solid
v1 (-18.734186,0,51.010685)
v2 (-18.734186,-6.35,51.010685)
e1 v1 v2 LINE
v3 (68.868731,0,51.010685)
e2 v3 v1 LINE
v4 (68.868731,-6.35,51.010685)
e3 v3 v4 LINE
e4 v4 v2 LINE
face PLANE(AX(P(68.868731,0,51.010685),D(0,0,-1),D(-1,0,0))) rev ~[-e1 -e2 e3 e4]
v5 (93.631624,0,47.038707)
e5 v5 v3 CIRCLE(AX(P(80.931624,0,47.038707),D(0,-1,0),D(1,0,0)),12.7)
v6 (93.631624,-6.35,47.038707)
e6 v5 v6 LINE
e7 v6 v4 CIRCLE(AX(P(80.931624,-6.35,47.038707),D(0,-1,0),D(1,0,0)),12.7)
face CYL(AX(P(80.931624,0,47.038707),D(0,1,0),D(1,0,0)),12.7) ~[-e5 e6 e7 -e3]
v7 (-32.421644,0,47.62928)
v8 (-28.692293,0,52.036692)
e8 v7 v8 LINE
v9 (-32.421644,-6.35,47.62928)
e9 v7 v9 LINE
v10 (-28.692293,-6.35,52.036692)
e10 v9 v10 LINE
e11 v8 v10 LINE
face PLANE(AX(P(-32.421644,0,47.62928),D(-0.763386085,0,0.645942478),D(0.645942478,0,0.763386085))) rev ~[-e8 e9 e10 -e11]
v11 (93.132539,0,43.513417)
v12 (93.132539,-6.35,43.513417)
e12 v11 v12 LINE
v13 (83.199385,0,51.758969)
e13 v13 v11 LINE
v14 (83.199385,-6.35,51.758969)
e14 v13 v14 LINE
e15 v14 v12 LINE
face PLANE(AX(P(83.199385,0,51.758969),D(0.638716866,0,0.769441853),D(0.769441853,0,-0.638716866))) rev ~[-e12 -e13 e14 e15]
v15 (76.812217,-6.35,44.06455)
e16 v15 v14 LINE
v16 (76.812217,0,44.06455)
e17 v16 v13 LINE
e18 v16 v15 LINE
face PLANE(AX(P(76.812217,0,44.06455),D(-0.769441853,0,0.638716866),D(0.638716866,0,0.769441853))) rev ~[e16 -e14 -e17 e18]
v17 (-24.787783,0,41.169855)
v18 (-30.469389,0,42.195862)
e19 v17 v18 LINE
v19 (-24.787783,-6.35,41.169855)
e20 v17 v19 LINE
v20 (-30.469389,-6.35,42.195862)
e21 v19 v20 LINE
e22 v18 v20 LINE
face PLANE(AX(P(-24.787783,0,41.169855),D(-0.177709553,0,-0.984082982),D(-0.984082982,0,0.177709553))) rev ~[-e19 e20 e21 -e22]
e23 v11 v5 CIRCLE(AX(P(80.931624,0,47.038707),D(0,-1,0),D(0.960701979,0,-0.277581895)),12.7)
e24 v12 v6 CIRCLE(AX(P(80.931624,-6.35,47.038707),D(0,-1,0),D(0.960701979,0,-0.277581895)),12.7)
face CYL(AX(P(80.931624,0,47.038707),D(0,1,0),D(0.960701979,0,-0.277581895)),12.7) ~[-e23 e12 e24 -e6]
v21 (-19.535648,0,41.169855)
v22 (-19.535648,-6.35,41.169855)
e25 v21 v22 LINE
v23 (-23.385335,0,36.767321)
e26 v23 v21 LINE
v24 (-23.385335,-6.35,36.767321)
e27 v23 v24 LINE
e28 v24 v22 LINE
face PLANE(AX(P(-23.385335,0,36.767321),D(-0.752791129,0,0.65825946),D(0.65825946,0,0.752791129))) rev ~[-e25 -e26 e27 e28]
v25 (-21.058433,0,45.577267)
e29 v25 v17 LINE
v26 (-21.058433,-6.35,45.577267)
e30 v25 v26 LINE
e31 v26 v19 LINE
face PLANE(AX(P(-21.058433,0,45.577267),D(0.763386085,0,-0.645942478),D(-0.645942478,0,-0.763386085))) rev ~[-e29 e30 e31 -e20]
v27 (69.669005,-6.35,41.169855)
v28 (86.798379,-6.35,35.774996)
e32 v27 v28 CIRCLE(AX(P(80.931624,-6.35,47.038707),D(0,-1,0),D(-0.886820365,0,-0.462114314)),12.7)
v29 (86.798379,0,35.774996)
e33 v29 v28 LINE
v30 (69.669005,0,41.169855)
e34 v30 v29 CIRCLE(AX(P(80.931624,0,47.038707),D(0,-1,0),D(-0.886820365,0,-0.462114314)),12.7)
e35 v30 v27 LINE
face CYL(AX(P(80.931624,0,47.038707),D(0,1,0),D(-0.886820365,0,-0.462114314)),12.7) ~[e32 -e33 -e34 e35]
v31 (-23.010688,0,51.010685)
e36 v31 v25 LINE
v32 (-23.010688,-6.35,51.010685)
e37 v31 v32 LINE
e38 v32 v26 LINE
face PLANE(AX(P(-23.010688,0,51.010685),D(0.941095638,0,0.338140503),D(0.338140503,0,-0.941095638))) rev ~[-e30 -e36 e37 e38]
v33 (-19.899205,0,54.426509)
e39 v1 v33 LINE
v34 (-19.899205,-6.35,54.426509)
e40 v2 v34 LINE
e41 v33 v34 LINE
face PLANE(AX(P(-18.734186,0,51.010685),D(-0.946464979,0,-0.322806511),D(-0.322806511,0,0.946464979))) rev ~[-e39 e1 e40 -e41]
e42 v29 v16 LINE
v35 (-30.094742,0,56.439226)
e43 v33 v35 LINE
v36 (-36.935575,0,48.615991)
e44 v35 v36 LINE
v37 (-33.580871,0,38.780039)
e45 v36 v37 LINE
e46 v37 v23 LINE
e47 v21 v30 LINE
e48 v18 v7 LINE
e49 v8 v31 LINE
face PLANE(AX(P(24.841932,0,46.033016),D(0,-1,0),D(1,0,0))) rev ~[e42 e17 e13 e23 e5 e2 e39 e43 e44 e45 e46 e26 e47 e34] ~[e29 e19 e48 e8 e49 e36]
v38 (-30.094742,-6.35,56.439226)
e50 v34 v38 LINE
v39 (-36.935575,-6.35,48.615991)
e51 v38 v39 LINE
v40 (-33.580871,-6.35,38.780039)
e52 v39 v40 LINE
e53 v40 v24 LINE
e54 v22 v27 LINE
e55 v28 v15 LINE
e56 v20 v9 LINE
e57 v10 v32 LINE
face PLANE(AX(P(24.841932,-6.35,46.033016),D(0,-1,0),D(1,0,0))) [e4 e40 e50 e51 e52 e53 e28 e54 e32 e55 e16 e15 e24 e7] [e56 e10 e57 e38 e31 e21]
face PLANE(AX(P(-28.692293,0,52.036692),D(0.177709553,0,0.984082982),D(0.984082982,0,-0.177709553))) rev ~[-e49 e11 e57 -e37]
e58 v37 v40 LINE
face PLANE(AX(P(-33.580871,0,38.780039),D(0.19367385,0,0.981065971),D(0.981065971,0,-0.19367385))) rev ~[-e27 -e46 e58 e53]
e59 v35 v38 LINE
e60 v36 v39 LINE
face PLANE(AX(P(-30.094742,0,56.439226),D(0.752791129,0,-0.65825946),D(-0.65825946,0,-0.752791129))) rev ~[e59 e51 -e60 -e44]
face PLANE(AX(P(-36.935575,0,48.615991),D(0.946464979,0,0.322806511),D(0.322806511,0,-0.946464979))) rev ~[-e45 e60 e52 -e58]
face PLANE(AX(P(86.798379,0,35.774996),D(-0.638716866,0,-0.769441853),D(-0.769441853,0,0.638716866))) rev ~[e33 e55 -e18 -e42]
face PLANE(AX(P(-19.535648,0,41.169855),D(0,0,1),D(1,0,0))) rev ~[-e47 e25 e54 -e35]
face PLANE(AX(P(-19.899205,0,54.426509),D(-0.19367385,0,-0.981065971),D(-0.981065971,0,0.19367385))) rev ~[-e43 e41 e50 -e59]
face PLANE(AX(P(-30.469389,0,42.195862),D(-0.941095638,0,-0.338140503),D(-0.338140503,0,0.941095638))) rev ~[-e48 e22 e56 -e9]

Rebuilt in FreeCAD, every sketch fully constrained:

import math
import FreeCAD as App
import Part
import Sketcher
Q = App.Units.Quantity

doc = App.newDocument("Part")
body = doc.addObject("PartDesign::Body", "Body")

# Sketch on XZ plane
sketch1 = doc.addObject("Sketcher::SketchObject", "Sketch")
body.addObject(sketch1)
sketch1.AttachmentSupport = (doc.XZ_Plane, [""])
sketch1.MapMode = "FlatFace"
sketch1.addGeometry(Part.ArcOfCircle(Part.Circle(App.Vector(80.931624, 47.038707, 0), App.Vector(0, 0, 1), 12.7), math.radians(-152.476375), math.radians(-62.487042)), False)
sketch1.addGeometry(Part.LineSegment(App.Vector(86.798379, 35.774996, 0), App.Vector(76.812217, 44.06455, 0)), False)
sketch1.addGeometry(Part.LineSegment(App.Vector(76.812217, 44.06455, 0), App.Vector(83.199385, 51.758969, 0)), False)
sketch1.addGeometry(Part.LineSegment(App.Vector(83.199385, 51.758969, 0), App.Vector(93.132539, 43.513417, 0)), False)
sketch1.addGeometry(Part.ArcOfCircle(Part.Circle(App.Vector(80.931624, 47.038707, 0), App.Vector(0, 0, 1), 12.7), math.radians(-16.115938), math.radians(0)), False)
sketch1.addGeometry(Part.ArcOfCircle(Part.Circle(App.Vector(80.931624, 47.038707, 0), App.Vector(0, 0, 1), 12.7), math.radians(0), math.radians(161.774711)), False)
sketch1.addGeometry(Part.LineSegment(App.Vector(68.868731, 51.010685, 0), App.Vector(-18.734186, 51.010685, 0)), False)
sketch1.addGeometry(Part.LineSegment(App.Vector(-18.734186, 51.010685, 0), App.Vector(-19.899205, 54.426509, 0)), False)
sketch1.addGeometry(Part.LineSegment(App.Vector(-19.899205, 54.426509, 0), App.Vector(-30.094742, 56.439226, 0)), False)
sketch1.addGeometry(Part.LineSegment(App.Vector(-30.094742, 56.439226, 0), App.Vector(-36.935575, 48.615991, 0)), False)
sketch1.addGeometry(Part.LineSegment(App.Vector(-36.935575, 48.615991, 0), App.Vector(-33.580871, 38.780039, 0)), False)
sketch1.addGeometry(Part.LineSegment(App.Vector(-33.580871, 38.780039, 0), App.Vector(-23.385335, 36.767321, 0)), False)
sketch1.addGeometry(Part.LineSegment(App.Vector(-23.385335, 36.767321, 0), App.Vector(-19.535648, 41.169855, 0)), False)
sketch1.addGeometry(Part.LineSegment(App.Vector(-19.535648, 41.169855, 0), App.Vector(69.669005, 41.169855, 0)), False)
sketch1.addGeometry(Part.LineSegment(App.Vector(-23.010688, 51.010685, 0), App.Vector(-21.058433, 45.577267, 0)), False)
sketch1.addGeometry(Part.LineSegment(App.Vector(-21.058433, 45.577267, 0), App.Vector(-24.787783, 41.169855, 0)), False)
sketch1.addGeometry(Part.LineSegment(App.Vector(-24.787783, 41.169855, 0), App.Vector(-30.469389, 42.195862, 0)), False)
sketch1.addGeometry(Part.LineSegment(App.Vector(-30.469389, 42.195862, 0), App.Vector(-32.421644, 47.62928, 0)), False)
sketch1.addGeometry(Part.LineSegment(App.Vector(-32.421644, 47.62928, 0), App.Vector(-28.692293, 52.036692, 0)), False)
sketch1.addGeometry(Part.LineSegment(App.Vector(-28.692293, 52.036692, 0), App.Vector(-23.010688, 51.010685, 0)), False)
sketch1.addConstraint(Sketcher.Constraint("Coincident", 0, 2, 1, 1))
sketch1.addConstraint(Sketcher.Constraint("Coincident", 1, 2, 2, 1))
sketch1.addConstraint(Sketcher.Constraint("Coincident", 2, 2, 3, 1))
sketch1.addConstraint(Sketcher.Constraint("Coincident", 3, 2, 4, 1))
sketch1.addConstraint(Sketcher.Constraint("Coincident", 4, 2, 5, 1))
sketch1.addConstraint(Sketcher.Constraint("Coincident", 5, 2, 6, 1))
sketch1.addConstraint(Sketcher.Constraint("Coincident", 6, 2, 7, 1))
sketch1.addConstraint(Sketcher.Constraint("Coincident", 7, 2, 8, 1))
sketch1.addConstraint(Sketcher.Constraint("Coincident", 8, 2, 9, 1))
sketch1.addConstraint(Sketcher.Constraint("Coincident", 9, 2, 10, 1))
sketch1.addConstraint(Sketcher.Constraint("Coincident", 10, 2, 11, 1))
sketch1.addConstraint(Sketcher.Constraint("Coincident", 11, 2, 12, 1))
sketch1.addConstraint(Sketcher.Constraint("Coincident", 12, 2, 13, 1))
sketch1.addConstraint(Sketcher.Constraint("Coincident", 13, 2, 0, 1))
sketch1.addConstraint(Sketcher.Constraint("Coincident", 14, 2, 15, 1))
sketch1.addConstraint(Sketcher.Constraint("Coincident", 15, 2, 16, 1))
sketch1.addConstraint(Sketcher.Constraint("Coincident", 16, 2, 17, 1))
sketch1.addConstraint(Sketcher.Constraint("Coincident", 17, 2, 18, 1))
sketch1.addConstraint(Sketcher.Constraint("Coincident", 18, 2, 19, 1))
sketch1.addConstraint(Sketcher.Constraint("Coincident", 19, 2, 14, 1))
sketch1.addConstraint(Sketcher.Constraint("Horizontal", 6))
sketch1.addConstraint(Sketcher.Constraint("Horizontal", 13))
sketch1.addConstraint(Sketcher.Constraint("Coincident", 4, 3, 0, 3))
sketch1.addConstraint(Sketcher.Constraint("Coincident", 5, 3, 0, 3))
sketch1.addConstraint(Sketcher.Constraint("Radius", 0, Q("0.5 in")))
sketch1.addConstraint(Sketcher.Constraint("Radius", 4, Q("0.5 in")))
sketch1.addConstraint(Sketcher.Constraint("Distance", 2, Q("10 mm")))
sketch1.addConstraint(Sketcher.Constraint("DistanceY", 4, 3, 7, 2, Q("7.387801 mm")))
sketch1.addConstraint(Sketcher.Constraint("DistanceX", 10, 2, 5, 2, Q("102.449602 mm")))
sketch1.addConstraint(Sketcher.Constraint("DistanceY", 9, 2, 18, 2, Q("3.420701 mm")))
sketch1.addConstraint(Sketcher.Constraint("DistanceX", 19, 2, 6, 2, Q("4.276502 mm")))
sketch1.addConstraint(Sketcher.Constraint("Distance", 1, Q("12.978449 mm")))
sketch1.addConstraint(Sketcher.Constraint("Distance", 12, Q("5.848281 mm")))
sketch1.addConstraint(Sketcher.Constraint("DistanceX", 6, 2, 6, 1, Q("87.602917 mm")))
sketch1.addConstraint(Sketcher.Constraint("DistanceX", 13, 1, 13, 2, Q("89.204653 mm")))
sketch1.addConstraint(Sketcher.Constraint("DistanceX", -1, 1, 0, 2, Q("86.798379 mm")))
sketch1.addConstraint(Sketcher.Constraint("DistanceY", -1, 1, 1, 2, Q("44.06455 mm")))
sketch1.addConstraint(Sketcher.Constraint("DistanceY", -1, 1, 2, 2, Q("51.758969 mm")))
sketch1.addConstraint(Sketcher.Constraint("DistanceX", -1, 1, 3, 2, Q("93.132539 mm")))
sketch1.addConstraint(Sketcher.Constraint("DistanceX", -1, 1, 5, 2, Q("68.868731 mm")))
sketch1.addConstraint(Sketcher.Constraint("DistanceY", -1, 1, 7, 2, Q("54.426509 mm")))
sketch1.addConstraint(Sketcher.Constraint("DistanceX", 8, 2, -1, 1, Q("30.094742 mm")))
sketch1.addConstraint(Sketcher.Constraint("DistanceY", -1, 1, 9, 2, Q("48.615991 mm")))
sketch1.addConstraint(Sketcher.Constraint("DistanceY", -1, 1, 10, 2, Q("38.780039 mm")))
sketch1.addConstraint(Sketcher.Constraint("DistanceY", -1, 1, 11, 2, Q("36.767321 mm")))
sketch1.addConstraint(Sketcher.Constraint("DistanceX", 12, 2, -1, 1, Q("19.535648 mm")))
sketch1.addConstraint(Sketcher.Constraint("DistanceX", 16, 2, -1, 1, Q("30.469389 mm")))
sketch1.addConstraint(Sketcher.Constraint("DistanceY", -1, 1, 17, 2, Q("47.62928 mm")))
sketch1.addConstraint(Sketcher.Constraint("DistanceY", 0, 2, 0, 3, Q("11.263711 mm")))
sketch1.addConstraint(Sketcher.Constraint("DistanceY", 3, 2, 4, 2, Q("3.52529 mm")))
sketch1.addConstraint(Sketcher.Constraint("DistanceX", 7, 2, 6, 2, Q("1.165019 mm")))
sketch1.addConstraint(Sketcher.Constraint("DistanceY", 6, 2, 8, 2, Q("5.428541 mm")))
sketch1.addConstraint(Sketcher.Constraint("DistanceX", 9, 2, 7, 2, Q("17.03637 mm")))
sketch1.addConstraint(Sketcher.Constraint("DistanceY", 12, 2, 14, 2, Q("4.407412 mm")))
sketch1.addConstraint(Sketcher.Constraint("DistanceX", 8, 2, 14, 2, Q("9.036309 mm")))
sketch1.addConstraint(Sketcher.Constraint("DistanceX", 15, 2, 11, 2, Q("1.402449 mm")))
sketch1.addConstraint(Sketcher.Constraint("DistanceY", 15, 2, 14, 2, Q("4.407412 mm")))
sketch1.addConstraint(Sketcher.Constraint("DistanceY", 11, 2, 16, 2, Q("5.428541 mm")))
sketch1.addConstraint(Sketcher.Constraint("DistanceX", 9, 2, 17, 2, Q("4.513931 mm")))
sketch1.addConstraint(Sketcher.Constraint("DistanceX", 8, 2, 18, 2, Q("1.402449 mm")))
sketch1.addConstraint(Sketcher.Constraint("DistanceY", 14, 2, 19, 2, Q("5.433418 mm")))
pad1 = doc.addObject("PartDesign::Pad", "Pad")
body.addObject(pad1)
pad1.Profile = sketch1
pad1.Length = Q("0.25 in")

doc.recompute()
